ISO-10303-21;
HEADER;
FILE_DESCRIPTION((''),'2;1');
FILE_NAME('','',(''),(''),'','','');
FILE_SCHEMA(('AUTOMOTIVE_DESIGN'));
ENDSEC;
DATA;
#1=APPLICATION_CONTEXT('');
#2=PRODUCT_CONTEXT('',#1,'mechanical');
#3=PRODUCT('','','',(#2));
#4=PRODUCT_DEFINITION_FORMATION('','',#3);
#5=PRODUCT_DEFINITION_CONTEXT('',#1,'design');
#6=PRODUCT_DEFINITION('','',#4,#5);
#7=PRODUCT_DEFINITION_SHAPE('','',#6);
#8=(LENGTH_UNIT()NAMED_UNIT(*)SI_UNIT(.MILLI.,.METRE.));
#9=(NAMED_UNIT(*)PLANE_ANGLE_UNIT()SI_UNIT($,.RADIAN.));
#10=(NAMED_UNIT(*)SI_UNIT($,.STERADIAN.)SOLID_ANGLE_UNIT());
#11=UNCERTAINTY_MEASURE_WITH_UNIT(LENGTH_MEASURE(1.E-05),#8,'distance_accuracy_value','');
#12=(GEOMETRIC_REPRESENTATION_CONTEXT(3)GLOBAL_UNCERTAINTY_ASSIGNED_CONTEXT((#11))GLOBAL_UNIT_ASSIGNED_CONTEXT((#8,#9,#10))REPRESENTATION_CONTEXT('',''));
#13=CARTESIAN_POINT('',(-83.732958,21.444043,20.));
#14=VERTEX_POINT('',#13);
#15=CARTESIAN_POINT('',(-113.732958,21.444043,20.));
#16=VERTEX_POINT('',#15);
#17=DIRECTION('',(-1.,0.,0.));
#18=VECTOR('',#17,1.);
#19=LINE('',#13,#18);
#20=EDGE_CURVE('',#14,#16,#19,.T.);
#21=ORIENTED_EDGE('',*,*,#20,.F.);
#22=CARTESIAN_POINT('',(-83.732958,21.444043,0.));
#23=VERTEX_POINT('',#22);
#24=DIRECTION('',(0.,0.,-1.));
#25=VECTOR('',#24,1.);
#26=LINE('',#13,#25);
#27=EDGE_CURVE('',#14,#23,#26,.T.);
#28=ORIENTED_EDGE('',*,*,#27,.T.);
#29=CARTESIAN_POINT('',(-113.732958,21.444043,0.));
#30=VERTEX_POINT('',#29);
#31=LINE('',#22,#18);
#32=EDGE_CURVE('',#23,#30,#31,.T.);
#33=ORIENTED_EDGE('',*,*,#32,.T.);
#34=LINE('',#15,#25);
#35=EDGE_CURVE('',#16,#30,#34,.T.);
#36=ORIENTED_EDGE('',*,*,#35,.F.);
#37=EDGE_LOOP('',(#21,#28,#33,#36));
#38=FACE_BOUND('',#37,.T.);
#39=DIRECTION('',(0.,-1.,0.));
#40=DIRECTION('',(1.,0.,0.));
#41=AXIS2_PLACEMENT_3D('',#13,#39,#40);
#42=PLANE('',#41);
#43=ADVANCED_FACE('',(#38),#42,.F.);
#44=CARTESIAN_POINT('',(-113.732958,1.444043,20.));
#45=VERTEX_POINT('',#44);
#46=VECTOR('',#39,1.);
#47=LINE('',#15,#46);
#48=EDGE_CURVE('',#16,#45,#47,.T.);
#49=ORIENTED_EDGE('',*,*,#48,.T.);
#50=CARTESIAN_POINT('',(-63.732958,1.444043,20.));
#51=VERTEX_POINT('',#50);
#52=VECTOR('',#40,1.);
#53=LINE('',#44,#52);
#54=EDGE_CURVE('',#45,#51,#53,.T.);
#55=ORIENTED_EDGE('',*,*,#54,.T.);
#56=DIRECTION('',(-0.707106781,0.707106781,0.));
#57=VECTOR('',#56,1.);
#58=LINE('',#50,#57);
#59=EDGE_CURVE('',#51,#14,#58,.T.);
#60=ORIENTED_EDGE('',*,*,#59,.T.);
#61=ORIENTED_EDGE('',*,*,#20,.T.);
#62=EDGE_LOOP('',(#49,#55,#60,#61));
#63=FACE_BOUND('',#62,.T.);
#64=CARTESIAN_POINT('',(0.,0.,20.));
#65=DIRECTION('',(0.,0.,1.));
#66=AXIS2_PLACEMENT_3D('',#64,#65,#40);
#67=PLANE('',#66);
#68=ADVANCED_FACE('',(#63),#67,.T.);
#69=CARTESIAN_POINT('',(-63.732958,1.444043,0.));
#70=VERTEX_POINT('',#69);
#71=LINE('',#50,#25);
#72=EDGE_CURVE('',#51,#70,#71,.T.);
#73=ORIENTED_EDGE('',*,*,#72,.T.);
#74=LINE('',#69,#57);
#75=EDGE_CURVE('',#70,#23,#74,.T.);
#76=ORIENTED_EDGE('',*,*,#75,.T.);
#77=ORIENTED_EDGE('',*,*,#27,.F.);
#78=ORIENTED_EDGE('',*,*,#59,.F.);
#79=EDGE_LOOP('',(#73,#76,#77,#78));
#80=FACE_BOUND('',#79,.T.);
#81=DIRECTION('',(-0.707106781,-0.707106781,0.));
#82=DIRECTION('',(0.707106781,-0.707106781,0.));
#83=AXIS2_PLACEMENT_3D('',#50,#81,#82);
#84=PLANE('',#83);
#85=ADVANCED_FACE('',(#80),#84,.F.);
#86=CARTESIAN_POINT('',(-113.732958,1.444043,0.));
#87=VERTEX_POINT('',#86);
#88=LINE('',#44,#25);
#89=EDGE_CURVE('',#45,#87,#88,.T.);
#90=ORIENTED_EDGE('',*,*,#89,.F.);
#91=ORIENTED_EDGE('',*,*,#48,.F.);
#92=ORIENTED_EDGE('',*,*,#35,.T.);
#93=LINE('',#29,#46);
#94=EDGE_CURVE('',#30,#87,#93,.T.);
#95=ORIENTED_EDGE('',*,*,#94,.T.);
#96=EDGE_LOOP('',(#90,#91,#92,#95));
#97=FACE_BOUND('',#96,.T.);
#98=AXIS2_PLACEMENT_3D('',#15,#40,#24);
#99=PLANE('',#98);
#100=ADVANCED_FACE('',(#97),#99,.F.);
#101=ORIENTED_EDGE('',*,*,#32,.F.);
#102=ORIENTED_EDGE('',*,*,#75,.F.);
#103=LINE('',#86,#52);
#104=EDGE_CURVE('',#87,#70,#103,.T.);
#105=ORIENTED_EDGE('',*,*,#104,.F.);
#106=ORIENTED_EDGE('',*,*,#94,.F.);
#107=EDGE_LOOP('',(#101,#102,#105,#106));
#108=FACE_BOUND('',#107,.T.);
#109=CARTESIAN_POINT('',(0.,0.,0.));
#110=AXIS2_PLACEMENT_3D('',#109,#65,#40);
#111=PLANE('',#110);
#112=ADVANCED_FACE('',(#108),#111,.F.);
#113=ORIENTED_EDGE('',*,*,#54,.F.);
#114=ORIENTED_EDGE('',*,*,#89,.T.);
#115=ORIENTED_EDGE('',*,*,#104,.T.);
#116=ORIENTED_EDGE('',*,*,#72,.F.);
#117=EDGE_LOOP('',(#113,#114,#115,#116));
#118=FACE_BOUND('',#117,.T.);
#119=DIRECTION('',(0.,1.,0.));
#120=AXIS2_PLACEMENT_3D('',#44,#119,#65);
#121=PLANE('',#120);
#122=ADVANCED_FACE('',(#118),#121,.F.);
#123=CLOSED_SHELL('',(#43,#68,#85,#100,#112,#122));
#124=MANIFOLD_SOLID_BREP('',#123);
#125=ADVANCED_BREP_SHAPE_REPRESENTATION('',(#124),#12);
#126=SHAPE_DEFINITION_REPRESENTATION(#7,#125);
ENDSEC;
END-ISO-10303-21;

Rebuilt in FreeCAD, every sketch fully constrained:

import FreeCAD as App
import Part
import Sketcher
from FreeCAD import Vector
Q = App.Units.Quantity

doc = App.newDocument("Part")
params = doc.addObject("Spreadsheet::Sheet", "Params")
for row, (alias, value) in enumerate([
    ("sketch1_width", "50 mm"),
    ("sketch1_width2", "30 mm"),
    ("sketch1_height", "20 mm"),
    ("pad1_length", "20 mm"),
], start=1):
    params.set(f"A{row}", alias)
    params.set(f"B{row}", "=" + value)
    params.setAlias(f"B{row}", alias)

body = doc.addObject("PartDesign::Body", "Body")

sketch1 = doc.addObject("Sketcher::SketchObject", "Sketch")
body.addObject(sketch1)
sketch1.AttachmentSupport = (doc.XY_Plane, [""])
sketch1.MapMode = "FlatFace"
sketch1.addGeometry(Part.LineSegment(Vector(-114, 21, 0), Vector(-114, 1, 0)), False)
sketch1.addGeometry(Part.LineSegment(Vector(-114, 1, 0), Vector(-64, 1, 0)), False)
sketch1.addGeometry(Part.LineSegment(Vector(-64, 1, 0), Vector(-84, 21, 0)), False)
sketch1.addGeometry(Part.LineSegment(Vector(-84, 21, 0), Vector(-114, 21, 0)), False)
sketch1.addConstraint(Sketcher.Constraint("Coincident", 0, 2, 1, 1))
sketch1.addConstraint(Sketcher.Constraint("Coincident", 1, 2, 2, 1))
sketch1.addConstraint(Sketcher.Constraint("Coincident", 2, 2, 3, 1))
sketch1.addConstraint(Sketcher.Constraint("Coincident", 3, 2, 0, 1))
sketch1.addConstraint(Sketcher.Constraint("Vertical", 0))
sketch1.addConstraint(Sketcher.Constraint("Horizontal", 1))
sketch1.addConstraint(Sketcher.Constraint("Horizontal", 3))
sketch1.addConstraint(Sketcher.Constraint("DistanceX", 1, 1, 1, 2, Q("50 mm")))
sketch1.addConstraint(Sketcher.Constraint("DistanceX", 3, 2, 3, 1, Q("30 mm")))
sketch1.addConstraint(Sketcher.Constraint("DistanceY", 0, 2, 0, 1, Q("20 mm")))
sketch1.addConstraint(Sketcher.Constraint("DistanceX", 0, 2, -1, 1, Q("113.732958 mm")))
sketch1.addConstraint(Sketcher.Constraint("DistanceY", -1, 1, 0, 2, Q("1.444043 mm")))
sketch1.setExpression("Constraints[7]", "Params.sketch1_width")
sketch1.setExpression("Constraints[8]", "Params.sketch1_width2")
sketch1.setExpression("Constraints[9]", "Params.sketch1_height")
pad1 = doc.addObject("PartDesign::Pad", "Pad")
body.addObject(pad1)
pad1.Profile = sketch1
pad1.setExpression("Length", "Params.pad1_length")

doc.recompute()
